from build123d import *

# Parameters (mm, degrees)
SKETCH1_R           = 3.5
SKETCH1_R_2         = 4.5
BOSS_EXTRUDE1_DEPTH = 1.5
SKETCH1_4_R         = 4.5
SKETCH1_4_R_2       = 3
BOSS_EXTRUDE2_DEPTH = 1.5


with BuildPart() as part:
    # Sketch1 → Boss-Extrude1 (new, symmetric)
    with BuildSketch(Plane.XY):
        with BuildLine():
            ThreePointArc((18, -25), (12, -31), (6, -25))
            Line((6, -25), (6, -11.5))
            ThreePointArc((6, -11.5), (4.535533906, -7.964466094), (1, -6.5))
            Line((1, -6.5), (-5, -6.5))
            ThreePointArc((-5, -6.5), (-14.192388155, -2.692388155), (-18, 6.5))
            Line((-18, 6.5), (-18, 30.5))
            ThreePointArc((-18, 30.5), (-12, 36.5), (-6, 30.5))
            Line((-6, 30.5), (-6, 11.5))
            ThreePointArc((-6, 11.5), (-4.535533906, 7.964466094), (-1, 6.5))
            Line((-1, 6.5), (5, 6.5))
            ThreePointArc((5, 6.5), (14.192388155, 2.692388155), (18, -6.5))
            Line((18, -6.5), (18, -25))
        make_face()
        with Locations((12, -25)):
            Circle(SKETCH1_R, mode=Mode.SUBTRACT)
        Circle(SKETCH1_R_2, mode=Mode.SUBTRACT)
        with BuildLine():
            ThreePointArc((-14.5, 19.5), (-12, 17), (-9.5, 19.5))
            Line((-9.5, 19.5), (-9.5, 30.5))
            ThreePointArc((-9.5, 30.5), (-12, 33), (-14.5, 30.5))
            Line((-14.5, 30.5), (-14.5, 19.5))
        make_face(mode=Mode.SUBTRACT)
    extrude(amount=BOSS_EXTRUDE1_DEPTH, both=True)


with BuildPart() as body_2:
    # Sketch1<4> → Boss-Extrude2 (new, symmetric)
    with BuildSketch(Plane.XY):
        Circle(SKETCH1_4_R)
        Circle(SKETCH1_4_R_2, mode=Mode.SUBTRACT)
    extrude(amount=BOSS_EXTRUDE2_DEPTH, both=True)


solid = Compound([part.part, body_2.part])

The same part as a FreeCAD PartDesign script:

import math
import FreeCAD as App
import Part
import Sketcher

V = App.Vector
Q = App.Units.Quantity

doc = App.newDocument("Part")
body = doc.addObject("PartDesign::Body", "Body")

# Sketch on XY plane
sketch1 = body.newObject("Sketcher::SketchObject", "Sketch")
sketch1.AttachmentSupport = (doc.getObject("XY_Plane"), [""])
sketch1.MapMode = "FlatFace"
sketch1.addGeometry([
    Part.ArcOfCircle(Part.Circle(V(12, -25, 0), V(0, 0, 1), 6), math.radians(180), math.radians(360)),  # 0
    Part.LineSegment(V(18, -25, 0), V(18, -6.5, 0)),  # 1
    Part.ArcOfCircle(Part.Circle(V(5, -6.5, 0), V(0, 0, 1), 13), math.radians(0), math.radians(90)),  # 2
    Part.LineSegment(V(5, 6.5, 0), V(-1, 6.5, 0)),  # 3
    Part.ArcOfCircle(Part.Circle(V(-1, 11.5, 0), V(0, 0, 1), 5), math.radians(180), math.radians(270)),  # 4
    Part.LineSegment(V(-6, 11.5, 0), V(-6, 30.5, 0)),  # 5
    Part.ArcOfCircle(Part.Circle(V(-12, 30.5, 0), V(0, 0, 1), 6), math.radians(0), math.radians(180)),  # 6
    Part.LineSegment(V(-18, 30.5, 0), V(-18, 6.5, 0)),  # 7
    Part.ArcOfCircle(Part.Circle(V(-5, 6.5, 0), V(0, 0, 1), 13), math.radians(-180), math.radians(-90)),  # 8
    Part.LineSegment(V(-5, -6.5, 0), V(1, -6.5, 0)),  # 9
    Part.ArcOfCircle(Part.Circle(V(1, -11.5, 0), V(0, 0, 1), 5), math.radians(0), math.radians(90)),  # 10
    Part.LineSegment(V(6, -11.5, 0), V(6, -25, 0)),  # 11
    Part.Circle(V(12, -25, 0), V(0, 0, 1), 3.5),  # 12
    Part.Circle(V(0, 0, 0), V(0, 0, 1), 4.5),  # 13
    Part.LineSegment(V(-14.5, 19.5, 0), V(-14.5, 30.5, 0)),  # 14
    Part.ArcOfCircle(Part.Circle(V(-12, 30.5, 0), V(0, 0, 1), 2.5), math.radians(0), math.radians(180)),  # 15
    Part.LineSegment(V(-9.5, 30.5, 0), V(-9.5, 19.5, 0)),  # 16
    Part.ArcOfCircle(Part.Circle(V(-12, 19.5, 0), V(0, 0, 1), 2.5), math.radians(180), math.radians(360)),  # 17
], False)
sketch1.addConstraint([
    Sketcher.Constraint("Tangent", 0, 2, 1, 1),
    Sketcher.Constraint("Tangent", 1, 2, 2, 1),
    Sketcher.Constraint("Tangent", 2, 2, 3, 1),
    Sketcher.Constraint("Tangent", 3, 2, 4, 2),
    Sketcher.Constraint("Tangent", 4, 1, 5, 1),
    Sketcher.Constraint("Tangent", 5, 2, 6, 1),
    Sketcher.Constraint("Tangent", 6, 2, 7, 1),
    Sketcher.Constraint("Tangent", 7, 2, 8, 1),
    Sketcher.Constraint("Tangent", 8, 2, 9, 1),
    Sketcher.Constraint("Tangent", 9, 2, 10, 2),
    Sketcher.Constraint("Tangent", 10, 1, 11, 1),
    Sketcher.Constraint("Tangent", 11, 2, 0, 1),
    Sketcher.Constraint("Tangent", 14, 2, 15, 2),
    Sketcher.Constraint("Tangent", 15, 1, 16, 1),
    Sketcher.Constraint("Tangent", 16, 2, 17, 2),
    Sketcher.Constraint("Tangent", 17, 1, 14, 1),
    Sketcher.Constraint("Vertical", 1),
    Sketcher.Constraint("Horizontal", 3),
    Sketcher.Constraint("Vertical", 5),
    Sketcher.Constraint("Vertical", 7),
    Sketcher.Constraint("Horizontal", 9),
    Sketcher.Constraint("Vertical", 11),
    Sketcher.Constraint("Vertical", 14),
    Sketcher.Constraint("Vertical", 16),
    Sketcher.Constraint("Coincident", 13, 3, -1, 1),
    Sketcher.Constraint("Coincident", 12, 3, 0, 3),
    Sketcher.Constraint("Coincident", 15, 3, 6, 3),
    Sketcher.Constraint("Equal", 0, 6),
    Sketcher.Constraint("Equal", 2, 8),
    Sketcher.Constraint("Equal", 4, 10),
    Sketcher.Constraint("Symmetric", 2, 3, 8, 3, -1, 1),
    Sketcher.Constraint("Horizontal", 8, 3, 2, 2),
    Sketcher.Constraint("Diameter", 12, Q("7 mm")),
    Sketcher.Constraint("Diameter", 13, Q("9 mm")),
    Sketcher.Constraint("Radius", 0, Q("6 mm")),
    Sketcher.Constraint("Radius", 2, Q("13 mm")),
    Sketcher.Constraint("Radius", 4, Q("5 mm")),
    Sketcher.Constraint("Radius", 15, Q("2.5 mm")),
    Sketcher.Constraint("DistanceX", 3, 2, 3, 1, Q("6 mm")),
    Sketcher.Constraint("DistanceY", 5, 1, 5, 2, Q("19 mm")),
    Sketcher.Constraint("DistanceY", 14, 1, 14, 2, Q("11 mm")),
    Sketcher.Constraint("DistanceY", 1, 1, 1, 2, Q("18.5 mm")),
])
pad1 = body.newObject("PartDesign::Pad", "Pad")
pad1.Profile = sketch1
pad1.Length = 3
pad1.Midplane = True
body2 = doc.addObject("PartDesign::Body", "Body001")

# Sketch on XY plane
sketch2 = body2.newObject("Sketcher::SketchObject", "Sketch001")
sketch2.AttachmentSupport = (doc.getObject("XY_Plane001"), [""])
sketch2.MapMode = "FlatFace"
sketch2.addGeometry([
    Part.Circle(V(0, 0, 0), V(0, 0, 1), 4.5),
    Part.Circle(V(0, 0, 0), V(0, 0, 1), 3),
], False)
sketch2.addConstraint([
    Sketcher.Constraint("Coincident", 0, 3, -1, 1),
    Sketcher.Constraint("Coincident", 1, 3, -1, 1),
    Sketcher.Constraint("Diameter", 0, Q("9 mm")),
    Sketcher.Constraint("Diameter", 1, Q("6 mm")),
])
pad2 = body2.newObject("PartDesign::Pad", "Pad001")
pad2.Profile = sketch2
pad2.Length = 3
pad2.Midplane = True

doc.recompute()
